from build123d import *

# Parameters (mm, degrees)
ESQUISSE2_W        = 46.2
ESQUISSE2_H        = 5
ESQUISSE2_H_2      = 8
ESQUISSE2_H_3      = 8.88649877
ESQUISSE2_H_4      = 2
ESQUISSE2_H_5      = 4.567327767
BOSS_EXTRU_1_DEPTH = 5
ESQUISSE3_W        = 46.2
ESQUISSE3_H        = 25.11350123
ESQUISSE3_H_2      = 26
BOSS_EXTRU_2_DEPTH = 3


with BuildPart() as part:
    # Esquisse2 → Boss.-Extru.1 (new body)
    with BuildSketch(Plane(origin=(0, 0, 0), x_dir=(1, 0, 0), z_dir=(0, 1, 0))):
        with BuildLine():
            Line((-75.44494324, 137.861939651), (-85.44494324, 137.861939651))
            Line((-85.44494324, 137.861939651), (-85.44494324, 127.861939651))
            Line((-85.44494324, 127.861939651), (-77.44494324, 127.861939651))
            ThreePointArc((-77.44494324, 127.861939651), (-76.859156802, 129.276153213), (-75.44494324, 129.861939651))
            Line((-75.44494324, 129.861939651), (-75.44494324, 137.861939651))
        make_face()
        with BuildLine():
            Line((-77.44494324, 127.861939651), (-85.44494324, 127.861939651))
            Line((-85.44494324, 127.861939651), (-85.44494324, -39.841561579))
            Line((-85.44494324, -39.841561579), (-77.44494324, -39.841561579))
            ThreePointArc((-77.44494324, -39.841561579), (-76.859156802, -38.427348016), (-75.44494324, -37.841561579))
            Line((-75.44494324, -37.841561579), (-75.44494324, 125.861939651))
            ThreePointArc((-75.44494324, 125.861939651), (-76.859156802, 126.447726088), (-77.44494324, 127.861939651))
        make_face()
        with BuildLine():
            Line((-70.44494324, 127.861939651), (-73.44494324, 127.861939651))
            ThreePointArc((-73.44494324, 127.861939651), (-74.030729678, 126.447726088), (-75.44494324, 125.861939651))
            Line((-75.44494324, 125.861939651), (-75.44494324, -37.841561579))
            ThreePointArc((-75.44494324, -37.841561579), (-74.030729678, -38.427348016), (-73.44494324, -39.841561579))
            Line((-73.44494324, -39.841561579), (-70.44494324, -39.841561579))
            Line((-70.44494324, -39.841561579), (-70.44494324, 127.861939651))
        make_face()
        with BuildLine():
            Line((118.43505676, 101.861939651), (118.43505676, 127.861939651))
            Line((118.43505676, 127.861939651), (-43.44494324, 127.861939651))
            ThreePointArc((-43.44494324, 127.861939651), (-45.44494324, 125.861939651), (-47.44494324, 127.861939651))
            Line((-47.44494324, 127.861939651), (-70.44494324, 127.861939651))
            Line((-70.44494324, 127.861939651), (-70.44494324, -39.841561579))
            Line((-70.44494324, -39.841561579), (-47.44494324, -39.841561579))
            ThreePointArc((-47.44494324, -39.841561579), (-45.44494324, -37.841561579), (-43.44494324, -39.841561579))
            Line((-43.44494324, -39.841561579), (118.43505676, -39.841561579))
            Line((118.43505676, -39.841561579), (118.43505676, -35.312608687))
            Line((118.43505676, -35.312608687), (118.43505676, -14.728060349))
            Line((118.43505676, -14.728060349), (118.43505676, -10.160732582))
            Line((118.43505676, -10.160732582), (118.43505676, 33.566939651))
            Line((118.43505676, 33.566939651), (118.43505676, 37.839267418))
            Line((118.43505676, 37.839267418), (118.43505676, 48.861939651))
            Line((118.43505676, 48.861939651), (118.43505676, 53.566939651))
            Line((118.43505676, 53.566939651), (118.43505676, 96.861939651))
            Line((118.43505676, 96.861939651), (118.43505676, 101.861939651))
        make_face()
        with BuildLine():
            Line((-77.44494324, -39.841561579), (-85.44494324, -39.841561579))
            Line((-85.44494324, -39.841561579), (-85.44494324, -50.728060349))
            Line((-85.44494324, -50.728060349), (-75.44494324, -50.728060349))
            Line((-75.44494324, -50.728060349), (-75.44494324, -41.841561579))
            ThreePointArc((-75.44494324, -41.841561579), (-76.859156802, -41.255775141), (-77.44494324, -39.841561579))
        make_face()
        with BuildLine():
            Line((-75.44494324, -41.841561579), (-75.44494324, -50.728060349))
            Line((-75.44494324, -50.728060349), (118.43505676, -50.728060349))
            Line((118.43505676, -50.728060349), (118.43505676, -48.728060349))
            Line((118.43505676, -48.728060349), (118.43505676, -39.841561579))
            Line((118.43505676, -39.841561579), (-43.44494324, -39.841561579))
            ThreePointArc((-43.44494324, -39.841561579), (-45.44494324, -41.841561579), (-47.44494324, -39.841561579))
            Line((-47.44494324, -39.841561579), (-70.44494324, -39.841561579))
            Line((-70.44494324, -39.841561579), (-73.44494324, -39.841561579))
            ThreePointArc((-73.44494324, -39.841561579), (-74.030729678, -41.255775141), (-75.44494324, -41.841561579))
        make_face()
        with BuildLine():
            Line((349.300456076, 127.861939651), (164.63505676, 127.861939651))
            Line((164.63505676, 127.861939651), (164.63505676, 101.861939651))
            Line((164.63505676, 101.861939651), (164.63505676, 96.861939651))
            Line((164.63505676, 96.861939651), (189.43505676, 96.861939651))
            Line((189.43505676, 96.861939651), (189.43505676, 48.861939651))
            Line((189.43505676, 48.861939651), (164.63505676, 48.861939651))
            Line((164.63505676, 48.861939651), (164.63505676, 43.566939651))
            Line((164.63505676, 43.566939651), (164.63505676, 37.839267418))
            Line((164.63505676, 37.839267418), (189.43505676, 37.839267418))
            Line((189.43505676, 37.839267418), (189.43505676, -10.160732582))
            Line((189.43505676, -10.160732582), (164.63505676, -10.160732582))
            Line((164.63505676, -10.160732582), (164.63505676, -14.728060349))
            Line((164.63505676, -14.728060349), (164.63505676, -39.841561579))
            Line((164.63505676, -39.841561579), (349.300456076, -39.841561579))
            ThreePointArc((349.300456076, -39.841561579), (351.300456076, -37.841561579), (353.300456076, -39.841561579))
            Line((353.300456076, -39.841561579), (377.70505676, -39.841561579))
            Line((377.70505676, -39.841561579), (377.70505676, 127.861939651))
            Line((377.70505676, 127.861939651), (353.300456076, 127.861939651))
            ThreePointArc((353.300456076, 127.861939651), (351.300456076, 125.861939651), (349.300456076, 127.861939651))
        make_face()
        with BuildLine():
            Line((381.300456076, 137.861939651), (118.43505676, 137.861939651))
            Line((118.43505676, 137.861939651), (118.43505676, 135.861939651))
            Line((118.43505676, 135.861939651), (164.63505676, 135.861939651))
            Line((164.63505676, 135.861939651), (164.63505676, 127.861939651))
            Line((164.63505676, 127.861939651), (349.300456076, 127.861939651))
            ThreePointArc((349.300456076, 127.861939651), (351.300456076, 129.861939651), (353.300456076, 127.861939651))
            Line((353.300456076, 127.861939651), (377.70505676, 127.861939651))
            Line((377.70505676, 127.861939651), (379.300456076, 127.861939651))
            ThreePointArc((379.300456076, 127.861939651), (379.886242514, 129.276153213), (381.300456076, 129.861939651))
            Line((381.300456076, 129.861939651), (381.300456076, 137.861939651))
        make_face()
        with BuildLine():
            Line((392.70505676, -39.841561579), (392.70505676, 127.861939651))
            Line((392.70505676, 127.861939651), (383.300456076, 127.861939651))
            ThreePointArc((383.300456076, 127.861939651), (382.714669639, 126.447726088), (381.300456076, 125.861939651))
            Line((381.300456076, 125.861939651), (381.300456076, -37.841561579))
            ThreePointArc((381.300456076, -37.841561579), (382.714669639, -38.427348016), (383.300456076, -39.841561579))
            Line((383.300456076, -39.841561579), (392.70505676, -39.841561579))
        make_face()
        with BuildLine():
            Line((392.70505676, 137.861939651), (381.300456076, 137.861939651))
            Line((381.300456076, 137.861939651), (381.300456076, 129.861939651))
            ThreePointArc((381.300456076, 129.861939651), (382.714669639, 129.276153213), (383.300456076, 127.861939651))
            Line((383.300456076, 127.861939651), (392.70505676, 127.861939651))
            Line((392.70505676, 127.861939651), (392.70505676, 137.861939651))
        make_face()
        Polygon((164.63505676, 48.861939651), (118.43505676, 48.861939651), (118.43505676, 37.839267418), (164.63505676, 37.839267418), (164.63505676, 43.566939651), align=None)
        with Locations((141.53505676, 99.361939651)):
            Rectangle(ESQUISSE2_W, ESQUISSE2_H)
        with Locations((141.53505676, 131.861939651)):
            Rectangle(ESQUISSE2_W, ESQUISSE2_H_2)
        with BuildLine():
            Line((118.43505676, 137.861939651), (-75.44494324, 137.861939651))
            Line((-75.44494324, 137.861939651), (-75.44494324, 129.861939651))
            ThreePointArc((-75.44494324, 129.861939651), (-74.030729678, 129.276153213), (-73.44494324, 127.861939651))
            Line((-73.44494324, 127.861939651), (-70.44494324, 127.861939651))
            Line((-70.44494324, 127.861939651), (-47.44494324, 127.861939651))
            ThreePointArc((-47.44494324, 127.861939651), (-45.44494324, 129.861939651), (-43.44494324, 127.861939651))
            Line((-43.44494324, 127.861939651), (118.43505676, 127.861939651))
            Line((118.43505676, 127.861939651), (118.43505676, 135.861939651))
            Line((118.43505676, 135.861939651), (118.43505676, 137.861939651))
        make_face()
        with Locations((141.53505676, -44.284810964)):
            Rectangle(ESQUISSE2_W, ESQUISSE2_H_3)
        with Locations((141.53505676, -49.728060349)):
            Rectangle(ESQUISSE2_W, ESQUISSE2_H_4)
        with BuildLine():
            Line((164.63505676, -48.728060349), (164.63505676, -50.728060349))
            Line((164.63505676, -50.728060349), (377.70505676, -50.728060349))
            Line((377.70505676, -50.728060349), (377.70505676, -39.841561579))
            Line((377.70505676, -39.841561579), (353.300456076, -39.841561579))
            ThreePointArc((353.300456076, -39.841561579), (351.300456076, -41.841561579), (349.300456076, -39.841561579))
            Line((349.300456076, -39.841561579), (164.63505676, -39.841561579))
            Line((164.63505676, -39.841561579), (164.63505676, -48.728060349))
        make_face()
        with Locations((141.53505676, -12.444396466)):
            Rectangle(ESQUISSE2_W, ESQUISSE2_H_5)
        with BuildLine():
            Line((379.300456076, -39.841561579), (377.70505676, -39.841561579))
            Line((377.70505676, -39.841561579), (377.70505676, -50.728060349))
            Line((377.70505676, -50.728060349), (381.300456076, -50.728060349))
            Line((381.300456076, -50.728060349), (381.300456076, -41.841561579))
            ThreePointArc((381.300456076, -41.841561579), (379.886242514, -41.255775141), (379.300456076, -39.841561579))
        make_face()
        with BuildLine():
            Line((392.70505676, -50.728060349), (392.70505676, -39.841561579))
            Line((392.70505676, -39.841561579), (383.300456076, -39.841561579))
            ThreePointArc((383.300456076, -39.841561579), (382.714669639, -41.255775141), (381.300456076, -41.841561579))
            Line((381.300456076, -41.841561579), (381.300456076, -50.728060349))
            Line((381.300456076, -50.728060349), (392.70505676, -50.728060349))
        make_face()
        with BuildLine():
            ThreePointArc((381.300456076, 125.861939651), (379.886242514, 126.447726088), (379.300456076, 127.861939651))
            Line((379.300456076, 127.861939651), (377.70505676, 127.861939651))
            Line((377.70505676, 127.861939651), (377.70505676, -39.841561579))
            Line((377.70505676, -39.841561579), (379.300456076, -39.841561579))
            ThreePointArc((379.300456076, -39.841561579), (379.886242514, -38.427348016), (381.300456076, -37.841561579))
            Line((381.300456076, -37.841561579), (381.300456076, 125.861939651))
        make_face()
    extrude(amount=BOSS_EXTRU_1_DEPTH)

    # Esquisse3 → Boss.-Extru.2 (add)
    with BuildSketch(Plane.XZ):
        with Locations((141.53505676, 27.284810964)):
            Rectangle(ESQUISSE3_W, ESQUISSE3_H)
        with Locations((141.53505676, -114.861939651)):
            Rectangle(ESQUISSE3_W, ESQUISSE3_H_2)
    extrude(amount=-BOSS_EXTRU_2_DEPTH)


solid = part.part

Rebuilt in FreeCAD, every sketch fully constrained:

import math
import FreeCAD as App
import Part
import Sketcher

V = App.Vector

doc = App.newDocument("Part")
body = doc.addObject("PartDesign::Body", "Body")

sketch1 = doc.addObject("Sketcher::SketchObject", "Sketch")
body.addObject(sketch1)
sketch1.AttachmentSupport = (doc.XZ_Plane, [""])
sketch1.MapMode = "FlatFace"
sketch1.addGeometry(Part.LineSegment(V(-85.444943, 50.72806, 0), V(392.705057, 50.72806, 0)), False)
sketch1.addGeometry(Part.LineSegment(V(392.705057, 50.72806, 0), V(392.705057, -137.86194, 0)), False)
sketch1.addGeometry(Part.LineSegment(V(392.705057, -137.86194, 0), V(-85.444943, -137.86194, 0)), False)
sketch1.addGeometry(Part.LineSegment(V(-85.444943, -137.86194, 0), V(-85.444943, 50.72806, 0)), False)
sketch1.addGeometry(Part.ArcOfCircle(Part.Circle(V(381.300456, 39.841562, 0), V(0, 0, 1), 2), math.radians(90), math.radians(180)), False)
sketch1.addGeometry(Part.ArcOfCircle(Part.Circle(V(381.300456, 39.841562, 0), V(0, 0, 1), 2), math.radians(180), math.radians(270)), False)
sketch1.addGeometry(Part.ArcOfCircle(Part.Circle(V(381.300456, 39.841562, 0), V(0, 0, 1), 2), math.radians(-90), math.radians(0)), False)
sketch1.addGeometry(Part.ArcOfCircle(Part.Circle(V(381.300456, 39.841562, 0), V(0, 0, 1), 2), math.radians(0), math.radians(90)), False)
sketch1.addGeometry(Part.ArcOfCircle(Part.Circle(V(381.300456, -127.86194, 0), V(0, 0, 1), 2), math.radians(-180), math.radians(-90)), False)
sketch1.addGeometry(Part.ArcOfCircle(Part.Circle(V(381.300456, -127.86194, 0), V(0, 0, 1), 2), math.radians(-90), math.radians(0)), False)
sketch1.addGeometry(Part.ArcOfCircle(Part.Circle(V(381.300456, -127.86194, 0), V(0, 0, 1), 2), math.radians(0), math.radians(90)), False)
sketch1.addGeometry(Part.ArcOfCircle(Part.Circle(V(381.300456, -127.86194, 0), V(0, 0, 1), 2), math.radians(90), math.radians(180)), False)
sketch1.addGeometry(Part.Circle(V(351.300456, 39.841562, 0), V(0, 0, 1), 2), False)
sketch1.addGeometry(Part.ArcOfCircle(Part.Circle(V(-75.444943, 39.841562, 0), V(0, 0, 1), 2), math.radians(90), math.radians(180)), False)
sketch1.addGeometry(Part.ArcOfCircle(Part.Circle(V(-75.444943, 39.841562, 0), V(0, 0, 1), 2), math.radians(180), math.radians(270)), False)
sketch1.addGeometry(Part.ArcOfCircle(Part.Circle(V(-75.444943, 39.841562, 0), V(0, 0, 1), 2), math.radians(-90), math.radians(0)), False)
sketch1.addGeometry(Part.ArcOfCircle(Part.Circle(V(-75.444943, 39.841562, 0), V(0, 0, 1), 2), math.radians(0), math.radians(90)), False)
sketch1.addGeometry(Part.Circle(V(-45.444943, 39.841562, 0), V(0, 0, 1), 2), False)
sketch1.addGeometry(Part.LineSegment(V(164.635057, 39.841562, 0), V(118.435057, 39.841562, 0)), False)
sketch1.addGeometry(Part.LineSegment(V(118.435057, 39.841562, 0), V(118.435057, 14.72806, 0)), False)
sketch1.addGeometry(Part.LineSegment(V(118.435057, 14.72806, 0), V(164.635057, 14.72806, 0)), False)
sketch1.addGeometry(Part.LineSegment(V(164.635057, 14.72806, 0), V(164.635057, 39.841562, 0)), False)
sketch1.addGeometry(Part.LineSegment(V(118.435057, 10.160733, 0), V(118.435057, -37.839267, 0)), False)
sketch1.addGeometry(Part.LineSegment(V(118.435057, -37.839267, 0), V(189.435057, -37.839267, 0)), False)
sketch1.addGeometry(Part.LineSegment(V(189.435057, -37.839267, 0), V(189.435057, 10.160733, 0)), False)
sketch1.addGeometry(Part.LineSegment(V(189.435057, 10.160733, 0), V(164.635057, 10.160733, 0)), False)
sketch1.addGeometry(Part.LineSegment(V(164.635057, 10.160733, 0), V(118.435057, 10.160733, 0)), False)
sketch1.addGeometry(Part.ArcOfCircle(Part.Circle(V(-75.444943, -127.86194, 0), V(0, 0, 1), 2), math.radians(-180), math.radians(-90)), False)
sketch1.addGeometry(Part.ArcOfCircle(Part.Circle(V(-75.444943, -127.86194, 0), V(0, 0, 1), 2), math.radians(-90), math.radians(0)), False)
sketch1.addGeometry(Part.ArcOfCircle(Part.Circle(V(-75.444943, -127.86194, 0), V(0, 0, 1), 2), math.radians(0), math.radians(90)), False)
sketch1.addGeometry(Part.ArcOfCircle(Part.Circle(V(-75.444943, -127.86194, 0), V(0, 0, 1), 2), math.radians(90), math.radians(180)), False)
sketch1.addGeometry(Part.Circle(V(-45.444943, -127.86194, 0), V(0, 0, 1), 2), False)
sketch1.addGeometry(Part.LineSegment(V(189.435057, -96.86194, 0), V(189.435057, -48.86194, 0)), False)
sketch1.addGeometry(Part.LineSegment(V(189.435057, -48.86194, 0), V(118.435057, -48.86194, 0)), False)
sketch1.addGeometry(Part.LineSegment(V(118.435057, -48.86194, 0), V(118.435057, -96.86194, 0)), False)
sketch1.addGeometry(Part.LineSegment(V(118.435057, -96.86194, 0), V(189.435057, -96.86194, 0)), False)
sketch1.addGeometry(Part.LineSegment(V(118.435057, -101.86194, 0), V(118.435057, -127.86194, 0)), False)
sketch1.addGeometry(Part.LineSegment(V(118.435057, -127.86194, 0), V(164.635057, -127.86194, 0)), False)
sketch1.addGeometry(Part.LineSegment(V(164.635057, -127.86194, 0), V(164.635057, -101.86194, 0)), False)
sketch1.addGeometry(Part.LineSegment(V(164.635057, -101.86194, 0), V(118.435057, -101.86194, 0)), False)
sketch1.addGeometry(Part.Circle(V(351.300456, -127.86194, 0), V(0, 0, 1), 2), False)
sketch1.addConstraint(Sketcher.Constraint("Coincident", 0, 2, 1, 1))
sketch1.addConstraint(Sketcher.Constraint("Coincident", 1, 2, 2, 1))
sketch1.addConstraint(Sketcher.Constraint("Coincident", 2, 2, 3, 1))
sketch1.addConstraint(Sketcher.Constraint("Coincident", 3, 2, 0, 1))
sketch1.addConstraint(Sketcher.Constraint("Tangent", 4, 2, 5, 1))
sketch1.addConstraint(Sketcher.Constraint("Tangent", 5, 2, 6, 1))
sketch1.addConstraint(Sketcher.Constraint("Tangent", 6, 2, 7, 1))
sketch1.addConstraint(Sketcher.Constraint("Tangent", 7, 2, 4, 1))
sketch1.addConstraint(Sketcher.Constraint("Tangent", 8, 2, 9, 1))
sketch1.addConstraint(Sketcher.Constraint("Tangent", 9, 2, 10, 1))
sketch1.addConstraint(Sketcher.Constraint("Tangent", 10, 2, 11, 1))
sketch1.addConstraint(Sketcher.Constraint("Tangent", 11, 2, 8, 1))
sketch1.addConstraint(Sketcher.Constraint("Tangent", 13, 2, 14, 1))
sketch1.addConstraint(Sketcher.Constraint("Tangent", 14, 2, 15, 1))
sketch1.addConstraint(Sketcher.Constraint("Tangent", 15, 2, 16, 1))
sketch1.addConstraint(Sketcher.Constraint("Tangent", 16, 2, 13, 1))
sketch1.addConstraint(Sketcher.Constraint("Coincident", 18, 2, 19, 1))
sketch1.addConstraint(Sketcher.Constraint("Coincident", 19, 2, 20, 1))
sketch1.addConstraint(Sketcher.Constraint("Coincident", 20, 2, 21, 1))
sketch1.addConstraint(Sketcher.Constraint("Coincident", 21, 2, 18, 1))
sketch1.addConstraint(Sketcher.Constraint("Coincident", 22, 2, 23, 1))
sketch1.addConstraint(Sketcher.Constraint("Coincident", 23, 2, 24, 1))
sketch1.addConstraint(Sketcher.Constraint("Coincident", 24, 2, 25, 1))
sketch1.addConstraint(Sketcher.Constraint("Coincident", 25, 2, 26, 1))
sketch1.addConstraint(Sketcher.Constraint("Coincident", 26, 2, 22, 1))
sketch1.addConstraint(Sketcher.Constraint("Tangent", 27, 2, 28, 1))
sketch1.addConstraint(Sketcher.Constraint("Tangent", 28, 2, 29, 1))
sketch1.addConstraint(Sketcher.Constraint("Tangent", 29, 2, 30, 1))
sketch1.addConstraint(Sketcher.Constraint("Tangent", 30, 2, 27, 1))
sketch1.addConstraint(Sketcher.Constraint("Coincident", 32, 2, 33, 1))
sketch1.addConstraint(Sketcher.Constraint("Coincident", 33, 2, 34, 1))
sketch1.addConstraint(Sketcher.Constraint("Coincident", 34, 2, 35, 1))
sketch1.addConstraint(Sketcher.Constraint("Coincident", 35, 2, 32, 1))
sketch1.addConstraint(Sketcher.Constraint("Coincident", 36, 2, 37, 1))
sketch1.addConstraint(Sketcher.Constraint("Coincident", 37, 2, 38, 1))
sketch1.addConstraint(Sketcher.Constraint("Coincident", 38, 2, 39, 1))
sketch1.addConstraint(Sketcher.Constraint("Coincident", 39, 2, 36, 1))
sketch1.addConstraint(Sketcher.Constraint("Horizontal", 0))
sketch1.addConstraint(Sketcher.Constraint("Vertical", 1))
sketch1.addConstraint(Sketcher.Constraint("Horizontal", 2))
sketch1.addConstraint(Sketcher.Constraint("Vertical", 3))
sketch1.addConstraint(Sketcher.Constraint("Horizontal", 18))
sketch1.addConstraint(Sketcher.Constraint("Vertical", 19))
sketch1.addConstraint(Sketcher.Constraint("Horizontal", 20))
sketch1.addConstraint(Sketcher.Constraint("Vertical", 21))
sketch1.addConstraint(Sketcher.Constraint("Vertical", 22))
sketch1.addConstraint(Sketcher.Constraint("Horizontal", 23))
sketch1.addConstraint(Sketcher.Constraint("Vertical", 24))
sketch1.addConstraint(Sketcher.Constraint("Horizontal", 25))
sketch1.addConstraint(Sketcher.Constraint("Horizontal", 26))
sketch1.addConstraint(Sketcher.Constraint("Vertical", 32))
sketch1.addConstraint(Sketcher.Constraint("Horizontal", 33))
sketch1.addConstraint(Sketcher.Constraint("Vertical", 34))
sketch1.addConstraint(Sketcher.Constraint("Horizontal", 35))
sketch1.addConstraint(Sketcher.Constraint("Vertical", 36))
sketch1.addConstraint(Sketcher.Constraint("Horizontal", 37))
sketch1.addConstraint(Sketcher.Constraint("Vertical", 38))
sketch1.addConstraint(Sketcher.Constraint("Horizontal", 39))
sketch1.addConstraint(Sketcher.Constraint("Equal", 4, 5))
sketch1.addConstraint(Sketcher.Constraint("Equal", 7, 8))
sketch1.addConstraint(Sketcher.Constraint("Equal", 8, 9))
sketch1.addConstraint(Sketcher.Constraint("Equal", 11, 12))
sketch1.addConstraint(Sketcher.Constraint("Equal", 12, 13))
sketch1.addConstraint(Sketcher.Constraint("Equal", 13, 14))
sketch1.addConstraint(Sketcher.Constraint("Equal", 16, 17))
sketch1.addConstraint(Sketcher.Constraint("Equal", 17, 27))
sketch1.addConstraint(Sketcher.Constraint("Equal", 27, 28))
sketch1.addConstraint(Sketcher.Constraint("Equal", 30, 31))
sketch1.addConstraint(Sketcher.Constraint("Equal", 31, 40))
sketch1.addConstraint(Sketcher.Constraint("Horizontal", 7, 3, 12, 3))
sketch1.addConstraint(Sketcher.Constraint("Horizontal", 12, 3, 13, 3))
sketch1.addConstraint(Sketcher.Constraint("Horizontal", 16, 3, 17, 3))
sketch1.addConstraint(Sketcher.Constraint("Horizontal", 11, 3, 27, 3))
sketch1.addConstraint(Sketcher.Constraint("Horizontal", 30, 3, 31, 3))
sketch1.addConstraint(Sketcher.Constraint("Horizontal", 31, 3, 40, 3))
sketch1.addConstraint(Sketcher.Constraint("Horizontal", 17, 3, 4, 2))
sketch1.addConstraint(Sketcher.Constraint("Horizontal", 4, 2, 6, 2))
sketch1.addConstraint(Sketcher.Constraint("Horizontal", 40, 3, 9, 2))
sketch1.addConstraint(Sketcher.Constraint("Horizontal", 9, 2, 11, 2))
sketch1.addConstraint(Sketcher.Constraint("Horizontal", 6, 2, 13, 2))
sketch1.addConstraint(Sketcher.Constraint("Horizontal", 13, 2, 15, 2))
sketch1.addConstraint(Sketcher.Constraint("Horizontal", 15, 2, 18, 2))
sketch1.addConstraint(Sketcher.Constraint("Horizontal", 11, 2, 28, 2))
sketch1.addConstraint(Sketcher.Constraint("Horizontal", 28, 2, 30, 2))
sketch1.addConstraint(Sketcher.Constraint("Horizontal", 30, 2, 36, 2))
sketch1.addConstraint(Sketcher.Constraint("Vertical", 7, 3, 8, 3))
sketch1.addConstraint(Sketcher.Constraint("Vertical", 16, 3, 27, 3))
sketch1.addConstraint(Sketcher.Constraint("Vertical", 17, 3, 31, 3))
sketch1.addConstraint(Sketcher.Constraint("Vertical", 12, 3, 40, 3))
sketch1.addConstraint(Sketcher.Constraint("Vertical", 11, 3, 5, 2))
sketch1.addConstraint(Sketcher.Constraint("Vertical", 5, 2, 7, 2))
sketch1.addConstraint(Sketcher.Constraint("Vertical", 7, 2, 8, 2))
sketch1.addConstraint(Sketcher.Constraint("Vertical", 8, 2, 10, 2))
sketch1.addConstraint(Sketcher.Constraint("Vertical", 30, 3, 14, 2))
sketch1.addConstraint(Sketcher.Constraint("Vertical", 14, 2, 16, 2))
sketch1.addConstraint(Sketcher.Constraint("Vertical", 19, 2, 22, 2))
sketch1.addConstraint(Sketcher.Constraint("Vertical", 21, 2, 25, 2))
sketch1.addConstraint(Sketcher.Constraint("Vertical", 16, 2, 27, 2))
sketch1.addConstraint(Sketcher.Constraint("Vertical", 27, 2, 29, 2))
sketch1.addConstraint(Sketcher.Constraint("Vertical", 24, 2, 32, 2))
sketch1.addConstraint(Sketcher.Constraint("Vertical", 26, 2, 33, 2))
sketch1.addConstraint(Sketcher.Constraint("Vertical", 34, 2, 36, 2))
sketch1.addConstraint(Sketcher.Constraint("Vertical", 25, 2, 37, 2))
sketch1.addConstraint(Sketcher.Constraint("Equal", 24, 32))
sketch1.addConstraint(Sketcher.Constraint("Diameter", 12, 4.0))
sketch1.addConstraint(Sketcher.Constraint("DistanceX", 23, 1, 23, 2, 71.0))
sketch1.addConstraint(Sketcher.Constraint("DistanceY", 22, 2, 22, 1, 48.0))
sketch1.addConstraint(Sketcher.Constraint("DistanceY", 36, 2, 36, 1, 26.0))
sketch1.addConstraint(Sketcher.Constraint("DistanceX", 18, 2, 18, 1, 46.2))
sketch1.addConstraint(Sketcher.Constraint("DistanceX", 12, 3, 5, 3, 30.0))
sketch1.addConstraint(Sketcher.Constraint("DistanceX", 13, 3, 17, 3, 30.0))
sketch1.addConstraint(Sketcher.Constraint("DistanceY", 1, 2, 10, 3, 10.0))
sketch1.addConstraint(Sketcher.Constraint("DistanceX", 2, 2, 28, 3, 10.0))
sketch1.addConstraint(Sketcher.Constraint("DistanceY", 36, 2, 34, 2, 31.0))
sketch1.addConstraint(Sketcher.Constraint("DistanceX", 0, 1, 0, 2, 478.15))
sketch1.addConstraint(Sketcher.Constraint("DistanceY", 1, 2, 1, 1, 188.59))
sketch1.addConstraint(Sketcher.Constraint("DistanceX", 17, 3, 18, 2, 163.88))
sketch1.addConstraint(Sketcher.Constraint("DistanceY", 32, 2, 20, 2, 63.59))
sketch1.addConstraint(Sketcher.Constraint("DistanceY", 19, 2, 19, 1, 25.113501))
sketch1.addConstraint(Sketcher.Constraint("DistanceX", 13, 3, 12, 3, 426.745399))
sketch1.addConstraint(Sketcher.Constraint("DistanceY", -1, 1, 4, 3, 39.841562))
sketch1.addConstraint(Sketcher.Constraint("DistanceY", 22, 2, 18, 2, 77.680829))
sketch1.addConstraint(Sketcher.Constraint("DistanceX", -1, 1, 4, 3, 381.300456))
pad1 = doc.addObject("PartDesign::Pad", "Pad")
body.addObject(pad1)
pad1.Profile = sketch1
pad1.Length = 5
pad1.Reversed = True

sketch2 = doc.addObject("Sketcher::SketchObject", "Sketch001")
body.addObject(sketch2)
sketch2.AttachmentSupport = (doc.XZ_Plane, [""])
sketch2.MapMode = "FlatFace"
sketch2.addGeometry(Part.LineSegment(V(118.435057, 39.841562, 0), V(118.435057, 14.72806, 0)), False)
sketch2.addGeometry(Part.LineSegment(V(118.435057, 14.72806, 0), V(164.635057, 14.72806, 0)), False)
sketch2.addGeometry(Part.LineSegment(V(164.635057, 14.72806, 0), V(164.635057, 39.841562, 0)), False)
sketch2.addGeometry(Part.LineSegment(V(164.635057, 39.841562, 0), V(118.435057, 39.841562, 0)), False)
sketch2.addGeometry(Part.LineSegment(V(118.435057, -101.86194, 0), V(118.435057, -127.86194, 0)), False)
sketch2.addGeometry(Part.LineSegment(V(118.435057, -127.86194, 0), V(164.635057, -127.86194, 0)), False)
sketch2.addGeometry(Part.LineSegment(V(164.635057, -127.86194, 0), V(164.635057, -101.86194, 0)), False)
sketch2.addGeometry(Part.LineSegment(V(164.635057, -101.86194, 0), V(118.435057, -101.86194, 0)), False)
sketch2.addConstraint(Sketcher.Constraint("Coincident", 0, 2, 1, 1))
sketch2.addConstraint(Sketcher.Constraint("Coincident", 1, 2, 2, 1))
sketch2.addConstraint(Sketcher.Constraint("Coincident", 2, 2, 3, 1))
sketch2.addConstraint(Sketcher.Constraint("Coincident", 3, 2, 0, 1))
sketch2.addConstraint(Sketcher.Constraint("Coincident", 4, 2, 5, 1))
sketch2.addConstraint(Sketcher.Constraint("Coincident", 5, 2, 6, 1))
sketch2.addConstraint(Sketcher.Constraint("Coincident", 6, 2, 7, 1))
sketch2.addConstraint(Sketcher.Constraint("Coincident", 7, 2, 4, 1))
sketch2.addConstraint(Sketcher.Constraint("Vertical", 0))
sketch2.addConstraint(Sketcher.Constraint("Horizontal", 1))
sketch2.addConstraint(Sketcher.Constraint("Vertical", 2))
sketch2.addConstraint(Sketcher.Constraint("Horizontal", 3))
sketch2.addConstraint(Sketcher.Constraint("Vertical", 4))
sketch2.addConstraint(Sketcher.Constraint("Horizontal", 5))
sketch2.addConstraint(Sketcher.Constraint("Vertical", 6))
sketch2.addConstraint(Sketcher.Constraint("Horizontal", 7))
sketch2.addConstraint(Sketcher.Constraint("Vertical", 3, 2, 4, 2))
sketch2.addConstraint(Sketcher.Constraint("Vertical", 2, 2, 5, 2))
sketch2.addConstraint(Sketcher.Constraint("DistanceY", 4, 2, 4, 1, 26.0))
sketch2.addConstraint(Sketcher.Constraint("DistanceX", 1, 1, 1, 2, 46.2))
sketch2.addConstraint(Sketcher.Constraint("DistanceY", 4, 2, 0, 2, 142.59))
sketch2.addConstraint(Sketcher.Constraint("DistanceY", 0, 2, 0, 1, 25.113501))
sketch2.addConstraint(Sketcher.Constraint("DistanceY", -1, 1, 0, 2, 14.72806))
sketch2.addConstraint(Sketcher.Constraint("DistanceX", -1, 1, 0, 2, 118.435057))
pad2 = doc.addObject("PartDesign::Pad", "Pad001")
body.addObject(pad2)
pad2.Profile = sketch2
pad2.Length = 3
pad2.Reversed = True

doc.recompute()
